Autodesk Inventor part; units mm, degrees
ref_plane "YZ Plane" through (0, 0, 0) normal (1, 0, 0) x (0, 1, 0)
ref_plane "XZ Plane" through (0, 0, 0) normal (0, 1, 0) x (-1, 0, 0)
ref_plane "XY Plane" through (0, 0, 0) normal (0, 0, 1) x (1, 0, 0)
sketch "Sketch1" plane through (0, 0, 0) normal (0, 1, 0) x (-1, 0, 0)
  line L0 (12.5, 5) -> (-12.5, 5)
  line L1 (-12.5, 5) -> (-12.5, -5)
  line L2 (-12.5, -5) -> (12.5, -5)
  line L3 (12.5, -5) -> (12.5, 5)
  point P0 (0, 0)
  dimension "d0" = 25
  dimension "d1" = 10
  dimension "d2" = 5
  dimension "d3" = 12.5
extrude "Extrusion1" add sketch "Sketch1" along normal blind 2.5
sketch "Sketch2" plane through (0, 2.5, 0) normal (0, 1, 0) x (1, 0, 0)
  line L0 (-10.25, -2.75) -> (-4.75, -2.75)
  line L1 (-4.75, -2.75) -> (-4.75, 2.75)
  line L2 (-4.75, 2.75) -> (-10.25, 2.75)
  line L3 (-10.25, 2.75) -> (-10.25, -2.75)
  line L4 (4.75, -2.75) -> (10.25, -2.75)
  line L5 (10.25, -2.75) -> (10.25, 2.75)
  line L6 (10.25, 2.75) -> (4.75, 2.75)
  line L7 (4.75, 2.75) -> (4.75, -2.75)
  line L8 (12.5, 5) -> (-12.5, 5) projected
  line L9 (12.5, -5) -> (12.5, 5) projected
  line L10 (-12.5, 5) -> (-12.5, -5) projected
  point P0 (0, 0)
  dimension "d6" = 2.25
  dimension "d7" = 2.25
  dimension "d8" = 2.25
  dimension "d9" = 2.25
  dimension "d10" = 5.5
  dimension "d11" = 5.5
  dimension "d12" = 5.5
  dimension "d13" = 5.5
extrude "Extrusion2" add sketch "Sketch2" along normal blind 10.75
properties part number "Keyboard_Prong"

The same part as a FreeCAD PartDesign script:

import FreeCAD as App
import Part
import Sketcher

doc = App.newDocument("Part")
body = doc.addObject("PartDesign::Body", "Body")

# Sketch on XZ plane
sketch1 = doc.addObject("Sketcher::SketchObject", "Sketch")
body.addObject(sketch1)
sketch1.AttachmentSupport = (doc.XZ_Plane, [""])
sketch1.MapMode = "FlatFace"
sketch1.addGeometry(Part.LineSegment(App.Vector(-12, -5, 0), App.Vector(-12, 5, 0)), False)
sketch1.addGeometry(Part.LineSegment(App.Vector(-12, 5, 0), App.Vector(12, 5, 0)), False)
sketch1.addGeometry(Part.LineSegment(App.Vector(12, 5, 0), App.Vector(12, -5, 0)), False)
sketch1.addGeometry(Part.LineSegment(App.Vector(12, -5, 0), App.Vector(-12, -5, 0)), False)
sketch1.addConstraint(Sketcher.Constraint("Coincident", 0, 2, 1, 1))
sketch1.addConstraint(Sketcher.Constraint("Coincident", 1, 2, 2, 1))
sketch1.addConstraint(Sketcher.Constraint("Coincident", 2, 2, 3, 1))
sketch1.addConstraint(Sketcher.Constraint("Coincident", 3, 2, 0, 1))
sketch1.addConstraint(Sketcher.Constraint("Vertical", 0))
sketch1.addConstraint(Sketcher.Constraint("Horizontal", 1))
sketch1.addConstraint(Sketcher.Constraint("Vertical", 2))
sketch1.addConstraint(Sketcher.Constraint("Horizontal", 3))
sketch1.addConstraint(Sketcher.Constraint("Symmetric", 0, 2, 2, 2, -1, 1))
sketch1.addConstraint(Sketcher.Constraint("DistanceX", 1, 1, 1, 2, 25.0))
sketch1.addConstraint(Sketcher.Constraint("DistanceY", 0, 1, 0, 2, 10.0))
pad1 = doc.addObject("PartDesign::Pad", "Pad")
body.addObject(pad1)
pad1.Profile = sketch1
pad1.Length = 2.5
pad1.Reversed = True

# Sketch on XZ plane
sketch2 = doc.addObject("Sketcher::SketchObject", "Sketch001")
body.addObject(sketch2)
sketch2.AttachmentSupport = (doc.XZ_Plane, [""])
sketch2.MapMode = "FlatFace"
sketch2.AttachmentOffset = App.Placement(App.Vector(0, 0, -2.5), App.Rotation())
sketch2.addGeometry(Part.LineSegment(App.Vector(-10, -3, 0), App.Vector(-10, 3, 0)), False)
sketch2.addGeometry(Part.LineSegment(App.Vector(-10, 3, 0), App.Vector(-5, 3, 0)), False)
sketch2.addGeometry(Part.LineSegment(App.Vector(-5, 3, 0), App.Vector(-5, -3, 0)), False)
sketch2.addGeometry(Part.LineSegment(App.Vector(-5, -3, 0), App.Vector(-10, -3, 0)), False)
sketch2.addGeometry(Part.LineSegment(App.Vector(5, -3, 0), App.Vector(5, 3, 0)), False)
sketch2.addGeometry(Part.LineSegment(App.Vector(5, 3, 0), App.Vector(10, 3, 0)), False)
sketch2.addGeometry(Part.LineSegment(App.Vector(10, 3, 0), App.Vector(10, -3, 0)), False)
sketch2.addGeometry(Part.LineSegment(App.Vector(10, -3, 0), App.Vector(5, -3, 0)), False)
sketch2.addConstraint(Sketcher.Constraint("Coincident", 0, 2, 1, 1))
sketch2.addConstraint(Sketcher.Constraint("Coincident", 1, 2, 2, 1))
sketch2.addConstraint(Sketcher.Constraint("Coincident", 2, 2, 3, 1))
sketch2.addConstraint(Sketcher.Constraint("Coincident", 3, 2, 0, 1))
sketch2.addConstraint(Sketcher.Constraint("Coincident", 4, 2, 5, 1))
sketch2.addConstraint(Sketcher.Constraint("Coincident", 5, 2, 6, 1))
sketch2.addConstraint(Sketcher.Constraint("Coincident", 6, 2, 7, 1))
sketch2.addConstraint(Sketcher.Constraint("Coincident", 7, 2, 4, 1))
sketch2.addConstraint(Sketcher.Constraint("Vertical", 0))
sketch2.addConstraint(Sketcher.Constraint("Horizontal", 1))
sketch2.addConstraint(Sketcher.Constraint("Vertical", 2))
sketch2.addConstraint(Sketcher.Constraint("Horizontal", 3))
sketch2.addConstraint(Sketcher.Constraint("Vertical", 4))
sketch2.addConstraint(Sketcher.Constraint("Horizontal", 5))
sketch2.addConstraint(Sketcher.Constraint("Vertical", 6))
sketch2.addConstraint(Sketcher.Constraint("Horizontal", 7))
sketch2.addConstraint(Sketcher.Constraint("Symmetric", 2, 2, 4, 2, -1, 1))
sketch2.addConstraint(Sketcher.Constraint("Symmetric", 0, 2, 6, 2, -1, 1))
sketch2.addConstraint(Sketcher.Constraint("Horizontal", 1, 2, 4, 2))
sketch2.addConstraint(Sketcher.Constraint("Equal", 7, 0))
sketch2.addConstraint(Sketcher.Constraint("DistanceX", 1, 1, 1, 2, 5.5))
sketch2.addConstraint(Sketcher.Constraint("DistanceX", 0, 2, 4, 2, 15.0))
pad2 = doc.addObject("PartDesign::Pad", "Pad001")
body.addObject(pad2)
pad2.Profile = sketch2
pad2.Length = 10.75
pad2.Reversed = True

doc.recompute()
